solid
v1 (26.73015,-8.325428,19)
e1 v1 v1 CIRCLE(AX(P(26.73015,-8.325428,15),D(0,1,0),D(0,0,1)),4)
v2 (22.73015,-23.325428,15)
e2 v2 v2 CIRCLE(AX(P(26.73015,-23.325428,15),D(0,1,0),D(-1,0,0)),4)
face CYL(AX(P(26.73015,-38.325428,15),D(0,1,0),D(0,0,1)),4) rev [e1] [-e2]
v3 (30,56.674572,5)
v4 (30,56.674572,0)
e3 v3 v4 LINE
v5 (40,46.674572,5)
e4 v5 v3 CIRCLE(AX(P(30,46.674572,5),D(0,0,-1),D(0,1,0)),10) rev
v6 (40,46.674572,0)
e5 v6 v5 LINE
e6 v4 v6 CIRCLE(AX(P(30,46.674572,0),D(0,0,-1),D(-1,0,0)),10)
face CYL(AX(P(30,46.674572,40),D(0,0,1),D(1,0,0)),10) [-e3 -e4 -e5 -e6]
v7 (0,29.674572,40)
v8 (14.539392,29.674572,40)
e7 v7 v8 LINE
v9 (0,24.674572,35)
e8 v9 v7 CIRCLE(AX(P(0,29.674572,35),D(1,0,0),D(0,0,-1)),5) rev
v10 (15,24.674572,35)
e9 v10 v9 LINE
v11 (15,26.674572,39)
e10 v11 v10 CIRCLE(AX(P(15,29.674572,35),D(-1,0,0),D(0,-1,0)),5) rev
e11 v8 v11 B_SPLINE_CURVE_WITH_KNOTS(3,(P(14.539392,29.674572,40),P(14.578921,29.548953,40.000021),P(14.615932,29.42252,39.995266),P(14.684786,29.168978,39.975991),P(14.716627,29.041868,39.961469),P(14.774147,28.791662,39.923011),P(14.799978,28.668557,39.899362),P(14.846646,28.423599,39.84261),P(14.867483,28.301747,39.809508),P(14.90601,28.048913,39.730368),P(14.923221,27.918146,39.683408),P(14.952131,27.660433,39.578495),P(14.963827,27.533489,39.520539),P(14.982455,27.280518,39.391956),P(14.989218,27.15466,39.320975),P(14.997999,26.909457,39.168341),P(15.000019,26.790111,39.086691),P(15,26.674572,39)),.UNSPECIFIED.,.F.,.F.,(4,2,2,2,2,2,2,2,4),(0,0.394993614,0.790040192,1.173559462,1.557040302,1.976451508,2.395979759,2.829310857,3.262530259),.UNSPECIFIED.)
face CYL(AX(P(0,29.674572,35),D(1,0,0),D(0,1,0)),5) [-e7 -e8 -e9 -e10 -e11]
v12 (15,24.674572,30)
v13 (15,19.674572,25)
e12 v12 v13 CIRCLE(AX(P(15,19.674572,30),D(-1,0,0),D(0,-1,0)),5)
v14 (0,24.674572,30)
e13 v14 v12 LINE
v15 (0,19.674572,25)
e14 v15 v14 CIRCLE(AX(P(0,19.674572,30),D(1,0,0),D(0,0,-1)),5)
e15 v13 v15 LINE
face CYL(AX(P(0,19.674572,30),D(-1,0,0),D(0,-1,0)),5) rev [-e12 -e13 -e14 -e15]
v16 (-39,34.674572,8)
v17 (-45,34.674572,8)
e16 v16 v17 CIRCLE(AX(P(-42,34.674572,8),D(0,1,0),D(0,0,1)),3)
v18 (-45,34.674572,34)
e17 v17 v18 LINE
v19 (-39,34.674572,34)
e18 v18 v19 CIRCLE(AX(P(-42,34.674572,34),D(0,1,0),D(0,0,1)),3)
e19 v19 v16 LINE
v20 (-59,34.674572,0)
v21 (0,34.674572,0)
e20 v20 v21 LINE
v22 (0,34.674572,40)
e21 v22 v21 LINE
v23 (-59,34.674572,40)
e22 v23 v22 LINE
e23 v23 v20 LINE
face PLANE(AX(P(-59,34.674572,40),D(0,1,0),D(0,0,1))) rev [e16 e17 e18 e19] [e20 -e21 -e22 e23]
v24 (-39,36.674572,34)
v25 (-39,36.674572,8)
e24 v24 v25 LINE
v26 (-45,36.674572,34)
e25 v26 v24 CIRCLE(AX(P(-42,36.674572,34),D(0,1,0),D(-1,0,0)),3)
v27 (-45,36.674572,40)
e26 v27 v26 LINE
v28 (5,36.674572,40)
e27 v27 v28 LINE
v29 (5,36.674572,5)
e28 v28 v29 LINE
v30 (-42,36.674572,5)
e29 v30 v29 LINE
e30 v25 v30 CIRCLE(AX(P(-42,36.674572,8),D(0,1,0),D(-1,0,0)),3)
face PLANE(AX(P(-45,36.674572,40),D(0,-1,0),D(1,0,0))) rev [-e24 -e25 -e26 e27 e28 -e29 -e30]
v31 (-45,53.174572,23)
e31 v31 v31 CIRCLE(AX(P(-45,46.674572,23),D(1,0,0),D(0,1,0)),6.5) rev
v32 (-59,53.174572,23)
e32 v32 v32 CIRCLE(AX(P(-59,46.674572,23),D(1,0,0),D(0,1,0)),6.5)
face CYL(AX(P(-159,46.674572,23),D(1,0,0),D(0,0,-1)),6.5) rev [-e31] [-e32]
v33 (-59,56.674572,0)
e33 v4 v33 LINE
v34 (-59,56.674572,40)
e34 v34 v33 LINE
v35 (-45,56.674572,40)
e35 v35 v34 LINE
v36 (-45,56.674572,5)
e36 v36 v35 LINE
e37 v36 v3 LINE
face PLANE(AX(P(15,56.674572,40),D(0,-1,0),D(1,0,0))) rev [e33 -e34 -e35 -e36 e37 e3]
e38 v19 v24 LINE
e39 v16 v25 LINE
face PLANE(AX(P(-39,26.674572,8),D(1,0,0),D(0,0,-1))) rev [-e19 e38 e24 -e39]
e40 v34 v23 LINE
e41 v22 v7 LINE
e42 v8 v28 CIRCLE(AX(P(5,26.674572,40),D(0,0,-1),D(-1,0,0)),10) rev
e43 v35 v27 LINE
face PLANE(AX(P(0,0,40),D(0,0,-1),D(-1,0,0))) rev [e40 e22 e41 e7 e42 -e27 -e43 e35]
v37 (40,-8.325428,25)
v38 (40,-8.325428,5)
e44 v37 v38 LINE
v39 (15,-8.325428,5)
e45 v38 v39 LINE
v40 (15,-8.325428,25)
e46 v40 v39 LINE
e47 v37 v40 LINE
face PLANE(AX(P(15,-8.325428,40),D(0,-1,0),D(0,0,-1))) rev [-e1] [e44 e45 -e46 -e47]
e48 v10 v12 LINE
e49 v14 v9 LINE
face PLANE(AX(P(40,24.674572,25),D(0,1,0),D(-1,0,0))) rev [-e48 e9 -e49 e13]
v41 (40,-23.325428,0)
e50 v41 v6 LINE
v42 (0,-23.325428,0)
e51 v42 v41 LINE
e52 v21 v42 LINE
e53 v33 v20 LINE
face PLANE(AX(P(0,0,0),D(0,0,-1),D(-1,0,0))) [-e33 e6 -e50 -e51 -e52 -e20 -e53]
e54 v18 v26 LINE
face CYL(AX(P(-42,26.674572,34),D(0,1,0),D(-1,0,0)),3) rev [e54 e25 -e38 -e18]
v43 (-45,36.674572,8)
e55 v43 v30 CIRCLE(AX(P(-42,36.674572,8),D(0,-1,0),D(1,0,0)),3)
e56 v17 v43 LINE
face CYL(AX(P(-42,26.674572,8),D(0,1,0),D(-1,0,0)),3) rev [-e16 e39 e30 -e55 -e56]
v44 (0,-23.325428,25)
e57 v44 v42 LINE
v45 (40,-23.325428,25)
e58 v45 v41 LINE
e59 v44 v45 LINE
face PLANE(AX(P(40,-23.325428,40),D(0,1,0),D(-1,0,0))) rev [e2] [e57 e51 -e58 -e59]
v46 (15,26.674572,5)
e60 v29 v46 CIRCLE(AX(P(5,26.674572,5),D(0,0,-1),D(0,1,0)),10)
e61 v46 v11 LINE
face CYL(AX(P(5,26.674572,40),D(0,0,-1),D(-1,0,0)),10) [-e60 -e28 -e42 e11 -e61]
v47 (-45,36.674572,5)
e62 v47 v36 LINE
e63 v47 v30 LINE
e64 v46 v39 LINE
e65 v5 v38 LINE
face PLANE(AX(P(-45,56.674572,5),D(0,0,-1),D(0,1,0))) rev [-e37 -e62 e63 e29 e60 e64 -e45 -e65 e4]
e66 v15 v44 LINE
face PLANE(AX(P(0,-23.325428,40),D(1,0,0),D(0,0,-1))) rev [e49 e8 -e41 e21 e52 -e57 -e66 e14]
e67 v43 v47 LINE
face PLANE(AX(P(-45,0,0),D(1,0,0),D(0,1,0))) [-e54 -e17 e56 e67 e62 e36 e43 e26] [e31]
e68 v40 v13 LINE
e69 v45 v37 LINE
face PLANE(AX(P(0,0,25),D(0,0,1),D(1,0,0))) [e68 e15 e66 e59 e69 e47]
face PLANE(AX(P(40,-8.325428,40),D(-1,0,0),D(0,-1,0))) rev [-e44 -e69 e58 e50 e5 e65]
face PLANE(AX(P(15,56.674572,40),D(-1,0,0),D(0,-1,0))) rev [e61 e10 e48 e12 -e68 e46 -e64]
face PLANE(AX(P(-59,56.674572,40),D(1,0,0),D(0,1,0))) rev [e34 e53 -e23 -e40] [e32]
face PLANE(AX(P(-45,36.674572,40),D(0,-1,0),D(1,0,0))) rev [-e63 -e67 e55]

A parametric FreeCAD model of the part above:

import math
import FreeCAD as App
import Part
import Sketcher

V = App.Vector
Q = App.Units.Quantity


def edges_at(feature, points):
    """Names of the edges that pass closest to the given points."""
    edges = feature.Shape.Edges
    near = lambda p: min(range(len(edges)), key=lambda i: edges[i].distToShape(Part.Vertex(*p))[0])
    return sorted({f"Edge{near(p) + 1}" for p in points})

doc = App.newDocument("Part")
body = doc.addObject("PartDesign::Body", "Body")

sketch1 = body.newObject("Sketcher::SketchObject", "Sketch")
sketch1.AttachmentSupport = (doc.getObject("XY_Plane"), [""])
sketch1.MapMode = "FlatFace"
sketch1.addGeometry(Part.LineSegment(V(0, -23, 0), V(40, -23, 0)), False)
sketch1.addGeometry(Part.LineSegment(V(40, -23, 0), V(40, -8, 0)), False)
sketch1.addGeometry(Part.LineSegment(V(40, -8, 0), V(15, -8, 0)), False)
sketch1.addGeometry(Part.LineSegment(V(15, -8, 0), V(15, 57, 0)), False)
sketch1.addGeometry(Part.LineSegment(V(15, 57, 0), V(-59, 57, 0)), False)
sketch1.addGeometry(Part.LineSegment(V(-59, 57, 0), V(-59, 35, 0)), False)
sketch1.addGeometry(Part.LineSegment(V(-59, 35, 0), V(0, 35, 0)), False)
sketch1.addGeometry(Part.LineSegment(V(0, 35, 0), V(0, -23, 0)), False)
sketch1.addConstraint(Sketcher.Constraint("Coincident", 0, 2, 1, 1))
sketch1.addConstraint(Sketcher.Constraint("Coincident", 1, 2, 2, 1))
sketch1.addConstraint(Sketcher.Constraint("Coincident", 2, 2, 3, 1))
sketch1.addConstraint(Sketcher.Constraint("Coincident", 3, 2, 4, 1))
sketch1.addConstraint(Sketcher.Constraint("Coincident", 4, 2, 5, 1))
sketch1.addConstraint(Sketcher.Constraint("Coincident", 5, 2, 6, 1))
sketch1.addConstraint(Sketcher.Constraint("Coincident", 6, 2, 7, 1))
sketch1.addConstraint(Sketcher.Constraint("Coincident", 7, 2, 0, 1))
sketch1.addConstraint(Sketcher.Constraint("Horizontal", 0))
sketch1.addConstraint(Sketcher.Constraint("Vertical", 1))
sketch1.addConstraint(Sketcher.Constraint("Horizontal", 2))
sketch1.addConstraint(Sketcher.Constraint("Vertical", 3))
sketch1.addConstraint(Sketcher.Constraint("Horizontal", 4))
sketch1.addConstraint(Sketcher.Constraint("Vertical", 5))
sketch1.addConstraint(Sketcher.Constraint("Horizontal", 6))
sketch1.addConstraint(Sketcher.Constraint("Vertical", 7))
sketch1.addConstraint(Sketcher.Constraint("PointOnObject", 6, 2, -2))
sketch1.addConstraint(Sketcher.Constraint("DistanceX", 0, 1, 0, 2, Q("40 mm")))
sketch1.addConstraint(Sketcher.Constraint("DistanceX", 2, 2, 2, 1, Q("25 mm")))
sketch1.addConstraint(Sketcher.Constraint("DistanceX", 4, 2, 4, 1, Q("74 mm")))
sketch1.addConstraint(Sketcher.Constraint("DistanceY", 1, 1, 1, 2, Q("15 mm")))
sketch1.addConstraint(Sketcher.Constraint("DistanceY", 3, 1, 3, 2, Q("65 mm")))
sketch1.addConstraint(Sketcher.Constraint("DistanceY", 5, 2, 5, 1, Q("22 mm")))
sketch1.addConstraint(Sketcher.Constraint("DistanceY", 0, 2, -1, 1, Q("23.325428 mm")))
pad1 = body.newObject("PartDesign::Pad", "Pad")
pad1.Profile = sketch1
pad1.Length = 40

sketch2 = body.newObject("Sketcher::SketchObject", "Sketch001")
sketch2.AttachmentSupport = (doc.getObject("XZ_Plane"), [""])
sketch2.MapMode = "FlatFace"
sketch2.AttachmentOffset = App.Placement(V(0, 0, 8.325428), App.Rotation())
sketch2.addGeometry(Part.Circle(V(26.7, 15, 0), V(0, 0, 1), 4), False)
sketch2.addConstraint(Sketcher.Constraint("Diameter", 0, Q("8 mm")))
sketch2.addConstraint(Sketcher.Constraint("DistanceY", -1, 1, 0, 3, Q("15 mm")))
sketch2.addConstraint(Sketcher.Constraint("DistanceX", -1, 1, 0, 3, Q("26.73015 mm")))
pocket1 = body.newObject("PartDesign::Pocket", "Pocket")
pocket1.Profile = sketch2
pocket1.Length = 30
pocket1.Reversed = True

sketch3 = body.newObject("Sketcher::SketchObject", "Sketch002")
sketch3.AttachmentSupport = (doc.getObject("YZ_Plane"), [""])
sketch3.MapMode = "FlatFace"
sketch3.AttachmentOffset = App.Placement(V(0, 0, -59), App.Rotation())
sketch3.addGeometry(Part.Circle(V(47, 23, 0), V(0, 0, 1), 6), False)
sketch3.addConstraint(Sketcher.Constraint("Diameter", 0, Q("13 mm")))
sketch3.addConstraint(Sketcher.Constraint("DistanceY", -1, 1, 0, 3, Q("23 mm")))
sketch3.addConstraint(Sketcher.Constraint("DistanceX", -1, 1, 0, 3, Q("46.674572 mm")))
pocket2 = body.newObject("PartDesign::Pocket", "Pocket001")
pocket2.Profile = sketch3
pocket2.Type = "ThroughAll"
pocket2.Midplane = True

sketch4 = body.newObject("Sketcher::SketchObject", "Sketch003")
sketch4.AttachmentSupport = (doc.getObject("YZ_Plane"), [""])
sketch4.MapMode = "FlatFace"
sketch4.AttachmentOffset = App.Placement(V(0, 0, 15), App.Rotation())
sketch4.addGeometry(Part.LineSegment(V(57, 40, 0), V(37, 40, 0)), False)
sketch4.addGeometry(Part.LineSegment(V(37, 40, 0), V(37, 5, 0)), False)
sketch4.addGeometry(Part.LineSegment(V(37, 5, 0), V(57, 5, 0)), False)
sketch4.addGeometry(Part.LineSegment(V(57, 5, 0), V(57, 40, 0)), False)
sketch4.addConstraint(Sketcher.Constraint("Coincident", 0, 2, 1, 1))
sketch4.addConstraint(Sketcher.Constraint("Coincident", 1, 2, 2, 1))
sketch4.addConstraint(Sketcher.Constraint("Coincident", 2, 2, 3, 1))
sketch4.addConstraint(Sketcher.Constraint("Coincident", 3, 2, 0, 1))
sketch4.addConstraint(Sketcher.Constraint("Horizontal", 0))
sketch4.addConstraint(Sketcher.Constraint("Vertical", 1))
sketch4.addConstraint(Sketcher.Constraint("Horizontal", 2))
sketch4.addConstraint(Sketcher.Constraint("Vertical", 3))
sketch4.addConstraint(Sketcher.Constraint("DistanceX", 0, 2, 0, 1, Q("20 mm")))
sketch4.addConstraint(Sketcher.Constraint("DistanceY", 1, 2, 1, 1, Q("35 mm")))
sketch4.addConstraint(Sketcher.Constraint("DistanceY", -1, 1, 0, 2, Q("40 mm")))
sketch4.addConstraint(Sketcher.Constraint("DistanceX", -1, 1, 0, 2, Q("36.674572 mm")))
pocket3 = body.newObject("PartDesign::Pocket", "Pocket002")
pocket3.Profile = sketch4
pocket3.Length = 60

sketch5 = body.newObject("Sketcher::SketchObject", "Sketch004")
sketch5.AttachmentSupport = (doc.getObject("YZ_Plane"), [""])
sketch5.MapMode = "FlatFace"
sketch5.AttachmentOffset = App.Placement(V(0, 0, 15), App.Rotation())
sketch5.addGeometry(Part.LineSegment(V(57, 5, 0), V(-8, 5, 0)), False)
sketch5.addGeometry(Part.LineSegment(V(-8, 5, 0), V(-8, 0, 0)), False)
sketch5.addGeometry(Part.LineSegment(V(-8, 0, 0), V(57, 0, 0)), False)
sketch5.addGeometry(Part.LineSegment(V(57, 0, 0), V(57, 5, 0)), False)
sketch5.addConstraint(Sketcher.Constraint("Coincident", 0, 2, 1, 1))
sketch5.addConstraint(Sketcher.Constraint("Coincident", 1, 2, 2, 1))
sketch5.addConstraint(Sketcher.Constraint("Coincident", 2, 2, 3, 1))
sketch5.addConstraint(Sketcher.Constraint("Coincident", 3, 2, 0, 1))
sketch5.addConstraint(Sketcher.Constraint("Horizontal", 0))
sketch5.addConstraint(Sketcher.Constraint("Vertical", 1))
sketch5.addConstraint(Sketcher.Constraint("Horizontal", 2))
sketch5.addConstraint(Sketcher.Constraint("Vertical", 3))
sketch5.addConstraint(Sketcher.Constraint("PointOnObject", 1, 2, -1))
sketch5.addConstraint(Sketcher.Constraint("DistanceX", 0, 2, 0, 1, Q("65 mm")))
sketch5.addConstraint(Sketcher.Constraint("DistanceY", 1, 2, 1, 1, Q("5 mm")))
sketch5.addConstraint(Sketcher.Constraint("DistanceX", 0, 2, -1, 1, Q("8.325428 mm")))
pad2 = body.newObject("PartDesign::Pad", "Pad001")
pad2.Profile = sketch5
pad2.Length = 25

sketch6 = body.newObject("Sketcher::SketchObject", "Sketch005")
sketch6.AttachmentSupport = (doc.getObject("XZ_Plane"), [""])
sketch6.MapMode = "FlatFace"
sketch6.AttachmentOffset = App.Placement(V(0, 0, -36.674572), App.Rotation())
sketch6.addGeometry(Part.LineSegment(V(-39, 34, 0), V(-39, 8, 0)), False)
sketch6.addGeometry(Part.ArcOfCircle(Part.Circle(V(-42, 8, 0), V(0, 0, 1), 3), math.radians(180), math.radians(360)), False)
sketch6.addGeometry(Part.LineSegment(V(-45, 8, 0), V(-45, 34, 0)), False)
sketch6.addGeometry(Part.ArcOfCircle(Part.Circle(V(-42, 34, 0), V(0, 0, 1), 3), math.radians(0), math.radians(180)), False)
sketch6.addConstraint(Sketcher.Constraint("Tangent", 0, 2, 1, 2))
sketch6.addConstraint(Sketcher.Constraint("Tangent", 1, 1, 2, 1))
sketch6.addConstraint(Sketcher.Constraint("Tangent", 2, 2, 3, 2))
sketch6.addConstraint(Sketcher.Constraint("Tangent", 3, 1, 0, 1))
sketch6.addConstraint(Sketcher.Constraint("Vertical", 0))
sketch6.addConstraint(Sketcher.Constraint("Vertical", 2))
sketch6.addConstraint(Sketcher.Constraint("Radius", 1, Q("3 mm")))
sketch6.addConstraint(Sketcher.Constraint("DistanceY", 0, 2, 0, 1, Q("26 mm")))
sketch6.addConstraint(Sketcher.Constraint("DistanceX", 1, 3, -1, 1, Q("42 mm")))
sketch6.addConstraint(Sketcher.Constraint("DistanceY", -1, 1, 1, 3, Q("8 mm")))
pocket4 = body.newObject("PartDesign::Pocket", "Pocket003")
pocket4.Profile = sketch6
pocket4.Length = 10
pocket4.Reversed = True
doc.recompute()

fillet = body.newObject("PartDesign::Fillet", "Fillet")
fillet.Base = (pocket4, edges_at(pocket4, [(15, 36.675, 22.5), (40, 56.675, 2.5)]))
fillet.Radius = 10

sketch7 = body.newObject("Sketcher::SketchObject", "Sketch006")
sketch7.AttachmentSupport = (doc.getObject("XY_Plane"), [""])
sketch7.MapMode = "FlatFace"
sketch7.AttachmentOffset = App.Placement(V(0, 0, 40), App.Rotation())
sketch7.addGeometry(Part.LineSegment(V(0, 25, 0), V(0, -23, 0)), False)
sketch7.addGeometry(Part.LineSegment(V(0, -23, 0), V(40, -23, 0)), False)
sketch7.addGeometry(Part.LineSegment(V(40, -23, 0), V(40, 25, 0)), False)
sketch7.addGeometry(Part.LineSegment(V(40, 25, 0), V(0, 25, 0)), False)
sketch7.addConstraint(Sketcher.Constraint("Coincident", 0, 2, 1, 1))
sketch7.addConstraint(Sketcher.Constraint("Coincident", 1, 2, 2, 1))
sketch7.addConstraint(Sketcher.Constraint("Coincident", 2, 2, 3, 1))
sketch7.addConstraint(Sketcher.Constraint("Coincident", 3, 2, 0, 1))
sketch7.addConstraint(Sketcher.Constraint("Vertical", 0))
sketch7.addConstraint(Sketcher.Constraint("Horizontal", 1))
sketch7.addConstraint(Sketcher.Constraint("Vertical", 2))
sketch7.addConstraint(Sketcher.Constraint("Horizontal", 3))
sketch7.addConstraint(Sketcher.Constraint("PointOnObject", 0, 2, -2))
sketch7.addConstraint(Sketcher.Constraint("DistanceX", 1, 1, 1, 2, Q("40 mm")))
sketch7.addConstraint(Sketcher.Constraint("DistanceY", 0, 2, 0, 1, Q("48 mm")))
sketch7.addConstraint(Sketcher.Constraint("DistanceY", 0, 2, -1, 1, Q("23.325428 mm")))
pocket5 = body.newObject("PartDesign::Pocket", "Pocket004")
pocket5.Profile = sketch7
pocket5.Length = 15
doc.recompute()

fillet2 = body.newObject("PartDesign::Fillet", "Fillet001")
fillet2.Base = (pocket5, edges_at(pocket5, [(7.5, 24.675, 40), (7.5, 24.675, 25)]))
fillet2.Radius = 5

doc.recompute()
